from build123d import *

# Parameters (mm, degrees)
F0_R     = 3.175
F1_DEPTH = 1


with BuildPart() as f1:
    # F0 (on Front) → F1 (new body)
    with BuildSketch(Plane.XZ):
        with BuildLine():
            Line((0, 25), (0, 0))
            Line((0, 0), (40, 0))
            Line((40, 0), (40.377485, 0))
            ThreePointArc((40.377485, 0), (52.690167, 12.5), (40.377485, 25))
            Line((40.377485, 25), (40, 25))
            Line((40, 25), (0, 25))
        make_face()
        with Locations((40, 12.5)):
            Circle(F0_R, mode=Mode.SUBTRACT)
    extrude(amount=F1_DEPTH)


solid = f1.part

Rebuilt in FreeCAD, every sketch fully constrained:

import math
import FreeCAD as App
import Part
import Sketcher
Q = App.Units.Quantity

doc = App.newDocument("Part")
body = doc.addObject("PartDesign::Body", "Body")

sketch1 = body.newObject("Sketcher::SketchObject", "Sketch")
sketch1.AttachmentSupport = (doc.getObject("XZ_Plane"), [""])
sketch1.MapMode = "FlatFace"
sketch1.addGeometry([
    Part.LineSegment(App.Vector(0, 25, 0), App.Vector(0, 0, 0)),
    Part.LineSegment(App.Vector(0, 0, 0), App.Vector(40.4, 0, 0)),
    Part.ArcOfCircle(Part.Circle(App.Vector(40.2, 12.5, 0), App.Vector(0, 0, 1), 12.5), math.radians(-89), math.radians(89)),
    Part.LineSegment(App.Vector(40.4, 25, 0), App.Vector(0, 25, 0)),
    Part.Circle(App.Vector(40, 12.5, 0), App.Vector(0, 0, 1), 3.2),
], False)
sketch1.addConstraint([
    Sketcher.Constraint("Coincident", 0, 2, 1, 1),
    Sketcher.Constraint("Coincident", 1, 2, 2, 1),
    Sketcher.Constraint("Coincident", 2, 2, 3, 1),
    Sketcher.Constraint("Coincident", 3, 2, 0, 1),
    Sketcher.Constraint("Vertical", 0),
    Sketcher.Constraint("Horizontal", 1),
    Sketcher.Constraint("Horizontal", 3),
    Sketcher.Constraint("Coincident", 0, 2, -1, 1),
    Sketcher.Constraint("Horizontal", 2, 3, 4, 3),
    Sketcher.Constraint("Vertical", 1, 2, 2, 2),
    Sketcher.Constraint("Diameter", 4, Q("6.35 mm")),
    Sketcher.Constraint("DistanceY", 0, 2, 0, 1, Q("25 mm")),
    Sketcher.Constraint("DistanceX", -1, 1, 4, 3, Q("40 mm")),
    Sketcher.Constraint("Radius", 2, Q("12.501425 mm")),
    Sketcher.Constraint("DistanceX", 1, 1, 1, 2, Q("40.377485 mm")),
])
pad1 = body.newObject("PartDesign::Pad", "Pad")
pad1.Profile = sketch1
pad1.Length = 1

doc.recompute()
